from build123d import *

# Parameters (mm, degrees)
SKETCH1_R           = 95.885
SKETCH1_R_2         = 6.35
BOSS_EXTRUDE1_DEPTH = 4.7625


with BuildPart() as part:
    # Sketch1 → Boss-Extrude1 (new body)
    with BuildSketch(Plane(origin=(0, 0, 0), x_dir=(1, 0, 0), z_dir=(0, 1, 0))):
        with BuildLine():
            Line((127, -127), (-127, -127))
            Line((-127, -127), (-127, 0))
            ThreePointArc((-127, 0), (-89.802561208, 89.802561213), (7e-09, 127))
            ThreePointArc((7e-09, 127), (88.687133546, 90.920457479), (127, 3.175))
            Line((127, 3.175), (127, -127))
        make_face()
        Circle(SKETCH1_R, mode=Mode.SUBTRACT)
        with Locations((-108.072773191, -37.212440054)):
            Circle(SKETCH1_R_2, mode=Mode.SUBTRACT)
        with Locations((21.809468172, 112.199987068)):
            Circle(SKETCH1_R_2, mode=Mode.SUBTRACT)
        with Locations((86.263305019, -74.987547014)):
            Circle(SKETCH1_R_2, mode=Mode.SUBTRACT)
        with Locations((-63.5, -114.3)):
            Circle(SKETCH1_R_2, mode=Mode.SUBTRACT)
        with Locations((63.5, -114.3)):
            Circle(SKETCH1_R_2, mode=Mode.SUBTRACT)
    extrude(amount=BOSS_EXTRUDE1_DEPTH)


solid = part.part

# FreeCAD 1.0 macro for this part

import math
import FreeCAD as App
import Part
import Sketcher

V = App.Vector
Q = App.Units.Quantity

doc = App.newDocument("Part")
body = doc.addObject("PartDesign::Body", "Body")

# Sketch on XZ plane
sketch1 = body.newObject("Sketcher::SketchObject", "Sketch")
sketch1.AttachmentSupport = (doc.getObject("XZ_Plane"), [""])
sketch1.MapMode = "FlatFace"
sketch1.addGeometry(Part.LineSegment(V(-127, 127, 0), V(127, 127, 0)), False)
sketch1.addGeometry(Part.LineSegment(V(127, 127, 0), V(127, -3.175, 0)), False)
sketch1.addGeometry(Part.ArcOfCircle(Part.Circle(V(0, 0.040705, 0), V(0, 0, 1), 127.040705), math.radians(-90), math.radians(-1.450449)), False)
sketch1.addGeometry(Part.ArcOfCircle(Part.Circle(V(0, 0, 0), V(0, 0, 1), 127), math.radians(-180), math.radians(-90)), False)
sketch1.addGeometry(Part.LineSegment(V(-127, 0, 0), V(-127, 127, 0)), False)
sketch1.addGeometry(Part.Circle(V(63.5, 114.3, 0), V(0, 0, 1), 6.35), False)
sketch1.addGeometry(Part.Circle(V(86.263305, 74.987547, 0), V(0, 0, 1), 6.35), False)
sketch1.addGeometry(Part.Circle(V(-63.5, 114.3, 0), V(0, 0, 1), 6.35), False)
sketch1.addGeometry(Part.Circle(V(-108.072773, 37.21244, 0), V(0, 0, 1), 6.35), False)
sketch1.addGeometry(Part.Circle(V(0, 0, 0), V(0, 0, 1), 95.885), False)
sketch1.addGeometry(Part.Circle(V(21.809468, -112.199987, 0), V(0, 0, 1), 6.35), False)
sketch1.addConstraint(Sketcher.Constraint("Coincident", 0, 2, 1, 1))
sketch1.addConstraint(Sketcher.Constraint("Coincident", 1, 2, 2, 2))
sketch1.addConstraint(Sketcher.Constraint("Tangent", 2, 1, 3, 2))
sketch1.addConstraint(Sketcher.Constraint("Tangent", 3, 1, 4, 1))
sketch1.addConstraint(Sketcher.Constraint("Coincident", 4, 2, 0, 1))
sketch1.addConstraint(Sketcher.Constraint("Horizontal", 0))
sketch1.addConstraint(Sketcher.Constraint("Vertical", 1))
sketch1.addConstraint(Sketcher.Constraint("Vertical", 4))
sketch1.addConstraint(Sketcher.Constraint("Coincident", 3, 3, -1, 1))
sketch1.addConstraint(Sketcher.Constraint("Coincident", 9, 3, -1, 1))
sketch1.addConstraint(Sketcher.Constraint("Equal", 5, 6))
sketch1.addConstraint(Sketcher.Constraint("Equal", 6, 7))
sketch1.addConstraint(Sketcher.Constraint("Equal", 7, 8))
sketch1.addConstraint(Sketcher.Constraint("Equal", 8, 10))
sketch1.addConstraint(Sketcher.Constraint("Symmetric", 5, 3, 7, 3, -2))
sketch1.addConstraint(Sketcher.Constraint("PointOnObject", 2, 3, -2))
sketch1.addConstraint(Sketcher.Constraint("Radius", 3, Q("5 in")))
sketch1.addConstraint(Sketcher.Constraint("Diameter", 5, Q("0.5 in")))
sketch1.addConstraint(Sketcher.Constraint("Diameter", 9, Q("7.55 in")))
sketch1.addConstraint(Sketcher.Constraint("DistanceX", 0, 1, 0, 2, Q("10 in")))
sketch1.addConstraint(Sketcher.Constraint("DistanceY", 4, 1, 4, 2, Q("5 in")))
sketch1.addConstraint(Sketcher.Constraint("DistanceX", 7, 3, 5, 3, Q("5 in")))
sketch1.addConstraint(Sketcher.Constraint("DistanceY", -1, 1, 5, 3, Q("4.5 in")))
sketch1.addConstraint(Sketcher.Constraint("DistanceY", 1, 2, 1, 1, Q("5.125 in")))
sketch1.addConstraint(Sketcher.Constraint("DistanceY", -1, 1, 8, 3, 37.21244))
sketch1.addConstraint(Sketcher.Constraint("DistanceX", -1, 1, 10, 3, 21.809468))
sketch1.addConstraint(Sketcher.Constraint("DistanceY", 2, 3, 6, 3, 74.946842))
sketch1.addConstraint(Sketcher.Constraint("DistanceX", 8, 3, 6, 3, 194.336078))
sketch1.addConstraint(Sketcher.Constraint("DistanceX", 8, 3, 10, 3, 129.882241))
sketch1.addConstraint(Sketcher.Constraint("DistanceY", 10, 3, -1, 1, 112.199987))
pad1 = body.newObject("PartDesign::Pad", "Pad")
pad1.Profile = sketch1
pad1.Length = Q("0.1875 in")
pad1.Reversed = True

doc.recompute()
